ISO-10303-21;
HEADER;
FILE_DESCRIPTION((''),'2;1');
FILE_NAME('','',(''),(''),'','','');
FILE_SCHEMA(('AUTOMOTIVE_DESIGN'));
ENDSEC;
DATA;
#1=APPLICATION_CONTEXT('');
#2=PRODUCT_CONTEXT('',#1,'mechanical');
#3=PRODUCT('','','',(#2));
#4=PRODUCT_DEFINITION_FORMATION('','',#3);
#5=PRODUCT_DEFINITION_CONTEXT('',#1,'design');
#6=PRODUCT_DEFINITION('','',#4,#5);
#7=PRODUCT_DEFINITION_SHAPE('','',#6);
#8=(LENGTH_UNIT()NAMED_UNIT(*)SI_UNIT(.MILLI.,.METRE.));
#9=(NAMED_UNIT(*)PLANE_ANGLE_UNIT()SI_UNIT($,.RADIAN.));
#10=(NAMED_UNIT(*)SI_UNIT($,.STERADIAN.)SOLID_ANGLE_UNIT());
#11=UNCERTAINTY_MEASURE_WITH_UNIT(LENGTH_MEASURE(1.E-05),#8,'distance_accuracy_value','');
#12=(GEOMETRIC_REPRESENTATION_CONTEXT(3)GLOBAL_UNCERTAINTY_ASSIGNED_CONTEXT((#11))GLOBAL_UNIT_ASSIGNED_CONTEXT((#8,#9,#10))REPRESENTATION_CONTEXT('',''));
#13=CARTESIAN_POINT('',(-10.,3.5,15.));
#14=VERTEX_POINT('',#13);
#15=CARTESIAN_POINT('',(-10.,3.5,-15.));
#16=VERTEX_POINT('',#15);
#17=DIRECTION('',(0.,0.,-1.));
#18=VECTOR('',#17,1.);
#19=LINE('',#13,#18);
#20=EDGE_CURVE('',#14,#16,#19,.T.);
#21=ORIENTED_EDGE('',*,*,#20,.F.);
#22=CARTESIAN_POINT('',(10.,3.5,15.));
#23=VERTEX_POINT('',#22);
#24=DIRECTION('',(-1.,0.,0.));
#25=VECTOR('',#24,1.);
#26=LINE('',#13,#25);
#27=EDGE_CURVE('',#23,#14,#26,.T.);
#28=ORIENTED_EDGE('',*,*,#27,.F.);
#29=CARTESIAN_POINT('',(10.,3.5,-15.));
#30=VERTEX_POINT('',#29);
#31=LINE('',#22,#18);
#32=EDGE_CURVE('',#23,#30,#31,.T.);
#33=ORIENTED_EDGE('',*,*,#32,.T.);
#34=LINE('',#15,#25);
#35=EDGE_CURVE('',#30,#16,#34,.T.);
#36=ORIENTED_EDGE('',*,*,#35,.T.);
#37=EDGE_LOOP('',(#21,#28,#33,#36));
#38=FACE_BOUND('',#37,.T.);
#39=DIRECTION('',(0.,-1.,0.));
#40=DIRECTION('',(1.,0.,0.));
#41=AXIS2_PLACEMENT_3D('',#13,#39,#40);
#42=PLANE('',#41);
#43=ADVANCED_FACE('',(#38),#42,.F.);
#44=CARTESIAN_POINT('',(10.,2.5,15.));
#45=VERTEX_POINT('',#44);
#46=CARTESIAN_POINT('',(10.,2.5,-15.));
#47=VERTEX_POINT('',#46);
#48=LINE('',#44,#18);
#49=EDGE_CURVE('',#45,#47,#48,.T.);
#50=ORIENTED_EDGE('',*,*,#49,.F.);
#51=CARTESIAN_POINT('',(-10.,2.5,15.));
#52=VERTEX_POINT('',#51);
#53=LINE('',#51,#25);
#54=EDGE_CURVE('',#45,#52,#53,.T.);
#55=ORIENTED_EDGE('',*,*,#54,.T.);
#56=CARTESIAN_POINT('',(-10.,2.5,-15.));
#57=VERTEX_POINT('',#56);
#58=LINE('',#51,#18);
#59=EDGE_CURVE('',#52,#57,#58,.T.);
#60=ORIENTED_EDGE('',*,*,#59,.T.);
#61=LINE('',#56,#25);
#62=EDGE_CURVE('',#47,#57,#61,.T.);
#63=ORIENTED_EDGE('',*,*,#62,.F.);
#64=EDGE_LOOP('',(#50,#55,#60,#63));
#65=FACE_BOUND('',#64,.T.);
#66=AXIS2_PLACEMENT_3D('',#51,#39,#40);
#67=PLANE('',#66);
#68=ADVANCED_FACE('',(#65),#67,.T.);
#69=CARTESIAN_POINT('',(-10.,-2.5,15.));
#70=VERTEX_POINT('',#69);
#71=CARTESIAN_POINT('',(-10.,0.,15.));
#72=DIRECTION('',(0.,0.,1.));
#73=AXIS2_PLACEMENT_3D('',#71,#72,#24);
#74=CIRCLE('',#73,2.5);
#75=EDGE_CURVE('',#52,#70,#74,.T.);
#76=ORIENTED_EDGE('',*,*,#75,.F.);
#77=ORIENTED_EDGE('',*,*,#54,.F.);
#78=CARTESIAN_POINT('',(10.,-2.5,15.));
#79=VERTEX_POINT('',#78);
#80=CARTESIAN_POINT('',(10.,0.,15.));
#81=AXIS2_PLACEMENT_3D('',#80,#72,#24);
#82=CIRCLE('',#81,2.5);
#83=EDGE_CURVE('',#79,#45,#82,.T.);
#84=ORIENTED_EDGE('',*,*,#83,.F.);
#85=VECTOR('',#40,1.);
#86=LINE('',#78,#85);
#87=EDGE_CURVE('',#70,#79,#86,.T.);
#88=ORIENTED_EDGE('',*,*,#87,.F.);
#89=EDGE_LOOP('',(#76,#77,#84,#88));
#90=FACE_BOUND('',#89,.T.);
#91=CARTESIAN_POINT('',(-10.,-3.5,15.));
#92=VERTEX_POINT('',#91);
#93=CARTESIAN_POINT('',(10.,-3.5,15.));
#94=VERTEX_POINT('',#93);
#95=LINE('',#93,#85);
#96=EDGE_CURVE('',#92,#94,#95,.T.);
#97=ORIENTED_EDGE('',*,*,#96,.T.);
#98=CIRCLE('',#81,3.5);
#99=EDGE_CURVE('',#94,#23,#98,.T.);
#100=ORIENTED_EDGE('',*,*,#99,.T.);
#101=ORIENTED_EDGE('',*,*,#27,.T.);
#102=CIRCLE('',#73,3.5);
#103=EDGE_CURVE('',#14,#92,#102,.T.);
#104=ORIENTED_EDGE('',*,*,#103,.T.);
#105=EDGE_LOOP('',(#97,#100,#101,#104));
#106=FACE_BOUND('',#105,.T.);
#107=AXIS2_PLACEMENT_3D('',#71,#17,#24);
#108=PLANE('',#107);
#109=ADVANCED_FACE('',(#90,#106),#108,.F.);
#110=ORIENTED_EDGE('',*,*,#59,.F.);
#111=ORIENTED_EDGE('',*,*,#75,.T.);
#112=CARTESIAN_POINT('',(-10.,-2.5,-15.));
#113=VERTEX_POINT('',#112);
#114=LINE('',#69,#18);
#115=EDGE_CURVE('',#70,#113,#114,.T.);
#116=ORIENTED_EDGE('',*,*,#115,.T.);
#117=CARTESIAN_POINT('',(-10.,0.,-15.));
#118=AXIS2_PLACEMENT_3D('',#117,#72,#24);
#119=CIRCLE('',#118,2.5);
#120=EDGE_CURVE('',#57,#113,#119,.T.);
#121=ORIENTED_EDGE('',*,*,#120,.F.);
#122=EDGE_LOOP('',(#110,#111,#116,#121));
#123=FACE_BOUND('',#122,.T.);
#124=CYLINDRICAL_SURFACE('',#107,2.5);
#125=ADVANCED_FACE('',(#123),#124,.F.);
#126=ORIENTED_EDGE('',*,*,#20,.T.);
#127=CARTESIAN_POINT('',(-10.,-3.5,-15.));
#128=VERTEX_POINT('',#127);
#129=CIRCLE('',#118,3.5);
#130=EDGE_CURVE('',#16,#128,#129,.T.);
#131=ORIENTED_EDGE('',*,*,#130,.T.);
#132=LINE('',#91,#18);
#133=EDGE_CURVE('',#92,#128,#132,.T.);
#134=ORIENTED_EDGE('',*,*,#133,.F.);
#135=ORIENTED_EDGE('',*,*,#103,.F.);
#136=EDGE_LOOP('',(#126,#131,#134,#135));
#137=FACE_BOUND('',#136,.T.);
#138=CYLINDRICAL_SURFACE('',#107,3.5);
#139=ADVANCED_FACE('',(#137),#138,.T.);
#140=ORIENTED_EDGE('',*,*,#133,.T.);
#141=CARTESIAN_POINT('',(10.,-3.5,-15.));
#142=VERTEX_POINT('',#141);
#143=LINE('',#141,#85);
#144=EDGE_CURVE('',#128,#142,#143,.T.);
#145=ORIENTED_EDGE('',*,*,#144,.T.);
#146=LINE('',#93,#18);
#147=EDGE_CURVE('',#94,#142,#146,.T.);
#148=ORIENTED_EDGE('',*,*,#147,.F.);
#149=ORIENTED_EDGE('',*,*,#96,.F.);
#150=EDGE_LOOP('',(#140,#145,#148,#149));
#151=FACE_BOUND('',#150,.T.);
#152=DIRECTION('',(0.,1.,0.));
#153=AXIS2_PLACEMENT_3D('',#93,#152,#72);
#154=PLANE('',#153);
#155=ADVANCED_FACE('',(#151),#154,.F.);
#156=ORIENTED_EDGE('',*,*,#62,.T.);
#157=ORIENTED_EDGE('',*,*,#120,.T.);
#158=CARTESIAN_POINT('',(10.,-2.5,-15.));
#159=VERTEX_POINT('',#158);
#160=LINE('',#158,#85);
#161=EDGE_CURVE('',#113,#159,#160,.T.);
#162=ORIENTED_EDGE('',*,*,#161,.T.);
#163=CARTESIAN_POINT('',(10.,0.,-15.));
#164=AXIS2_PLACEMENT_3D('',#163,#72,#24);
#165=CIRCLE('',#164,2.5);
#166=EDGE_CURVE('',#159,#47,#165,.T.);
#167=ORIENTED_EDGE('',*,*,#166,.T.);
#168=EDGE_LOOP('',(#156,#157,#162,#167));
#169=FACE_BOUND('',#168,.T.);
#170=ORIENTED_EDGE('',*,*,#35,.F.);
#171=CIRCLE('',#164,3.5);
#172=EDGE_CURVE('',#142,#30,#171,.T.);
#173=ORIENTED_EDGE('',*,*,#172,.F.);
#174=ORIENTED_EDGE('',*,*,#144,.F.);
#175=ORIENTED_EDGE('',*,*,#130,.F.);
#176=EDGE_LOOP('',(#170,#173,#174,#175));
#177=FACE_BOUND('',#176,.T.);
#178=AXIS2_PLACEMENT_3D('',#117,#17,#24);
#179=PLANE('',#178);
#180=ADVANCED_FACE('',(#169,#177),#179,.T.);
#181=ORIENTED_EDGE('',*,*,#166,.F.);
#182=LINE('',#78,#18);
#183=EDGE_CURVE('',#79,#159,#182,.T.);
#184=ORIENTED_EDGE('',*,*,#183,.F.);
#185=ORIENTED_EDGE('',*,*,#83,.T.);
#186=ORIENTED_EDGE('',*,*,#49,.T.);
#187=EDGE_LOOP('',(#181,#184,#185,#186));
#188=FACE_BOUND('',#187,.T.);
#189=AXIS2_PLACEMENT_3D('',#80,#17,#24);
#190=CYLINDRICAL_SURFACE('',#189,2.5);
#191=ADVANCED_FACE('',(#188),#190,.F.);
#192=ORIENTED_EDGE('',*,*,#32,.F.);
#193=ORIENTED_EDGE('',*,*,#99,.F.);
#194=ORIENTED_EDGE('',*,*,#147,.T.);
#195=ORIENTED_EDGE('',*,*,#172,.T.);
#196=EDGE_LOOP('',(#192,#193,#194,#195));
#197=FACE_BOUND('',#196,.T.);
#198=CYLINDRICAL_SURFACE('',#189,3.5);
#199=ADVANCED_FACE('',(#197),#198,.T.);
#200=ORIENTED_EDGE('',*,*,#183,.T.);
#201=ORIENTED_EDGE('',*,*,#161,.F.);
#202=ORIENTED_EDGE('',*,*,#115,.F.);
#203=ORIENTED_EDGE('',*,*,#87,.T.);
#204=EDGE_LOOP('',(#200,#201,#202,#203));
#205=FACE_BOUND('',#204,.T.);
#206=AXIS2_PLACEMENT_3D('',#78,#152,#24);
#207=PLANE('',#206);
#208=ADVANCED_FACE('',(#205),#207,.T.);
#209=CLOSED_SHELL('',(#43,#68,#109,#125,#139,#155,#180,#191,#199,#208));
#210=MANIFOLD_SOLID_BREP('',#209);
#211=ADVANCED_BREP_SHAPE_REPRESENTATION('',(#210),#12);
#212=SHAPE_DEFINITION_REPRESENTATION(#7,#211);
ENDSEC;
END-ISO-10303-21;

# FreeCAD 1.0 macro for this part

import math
import FreeCAD as App
import Part
import Sketcher

V = App.Vector
Q = App.Units.Quantity

doc = App.newDocument("Part")
body = doc.addObject("PartDesign::Body", "Body")

# Sketch on XY plane
sketch1 = doc.addObject("Sketcher::SketchObject", "Sketch")
body.addObject(sketch1)
sketch1.AttachmentSupport = (doc.XY_Plane, [""])
sketch1.MapMode = "FlatFace"
sketch1.addGeometry(Part.LineSegment(V(10, 3.5, 0), V(-10, 3.5, 0)), False)
sketch1.addGeometry(Part.ArcOfCircle(Part.Circle(V(-10, 0, 0), V(0, 0, 1), 3.5), math.radians(90), math.radians(270)), False)
sketch1.addGeometry(Part.LineSegment(V(-10, -3.5, 0), V(10, -3.5, 0)), False)
sketch1.addGeometry(Part.ArcOfCircle(Part.Circle(V(10, 0, 0), V(0, 0, 1), 3.5), math.radians(-90), math.radians(90)), False)
sketch1.addGeometry(Part.LineSegment(V(-10, 2.5, 0), V(10, 2.5, 0)), False)
sketch1.addGeometry(Part.ArcOfCircle(Part.Circle(V(10, 0, 0), V(0, 0, 1), 2.5), math.radians(-90), math.radians(90)), False)
sketch1.addGeometry(Part.LineSegment(V(10, -2.5, 0), V(-10, -2.5, 0)), False)
sketch1.addGeometry(Part.ArcOfCircle(Part.Circle(V(-10, 0, 0), V(0, 0, 1), 2.5), math.radians(90), math.radians(270)), False)
sketch1.addConstraint(Sketcher.Constraint("Tangent", 0, 2, 1, 1))
sketch1.addConstraint(Sketcher.Constraint("Tangent", 1, 2, 2, 1))
sketch1.addConstraint(Sketcher.Constraint("Tangent", 2, 2, 3, 1))
sketch1.addConstraint(Sketcher.Constraint("Tangent", 3, 2, 0, 1))
sketch1.addConstraint(Sketcher.Constraint("Tangent", 4, 2, 5, 2))
sketch1.addConstraint(Sketcher.Constraint("Tangent", 5, 1, 6, 1))
sketch1.addConstraint(Sketcher.Constraint("Tangent", 6, 2, 7, 2))
sketch1.addConstraint(Sketcher.Constraint("Tangent", 7, 1, 4, 1))
sketch1.addConstraint(Sketcher.Constraint("Horizontal", 0))
sketch1.addConstraint(Sketcher.Constraint("Horizontal", 2))
sketch1.addConstraint(Sketcher.Constraint("Horizontal", 4))
sketch1.addConstraint(Sketcher.Constraint("Horizontal", 6))
sketch1.addConstraint(Sketcher.Constraint("Coincident", 5, 3, 3, 3))
sketch1.addConstraint(Sketcher.Constraint("Symmetric", 1, 3, 3, 3, -1, 1))
sketch1.addConstraint(Sketcher.Constraint("Vertical", 7, 3, 0, 2))
sketch1.addConstraint(Sketcher.Constraint("Radius", 1, Q("3.5 mm")))
sketch1.addConstraint(Sketcher.Constraint("Radius", 5, Q("2.5 mm")))
sketch1.addConstraint(Sketcher.Constraint("DistanceX", 0, 2, 0, 1, Q("20 mm")))
pad1 = doc.addObject("PartDesign::Pad", "Pad")
body.addObject(pad1)
pad1.Profile = sketch1
pad1.Length = 30
pad1.Midplane = True

doc.recompute()
